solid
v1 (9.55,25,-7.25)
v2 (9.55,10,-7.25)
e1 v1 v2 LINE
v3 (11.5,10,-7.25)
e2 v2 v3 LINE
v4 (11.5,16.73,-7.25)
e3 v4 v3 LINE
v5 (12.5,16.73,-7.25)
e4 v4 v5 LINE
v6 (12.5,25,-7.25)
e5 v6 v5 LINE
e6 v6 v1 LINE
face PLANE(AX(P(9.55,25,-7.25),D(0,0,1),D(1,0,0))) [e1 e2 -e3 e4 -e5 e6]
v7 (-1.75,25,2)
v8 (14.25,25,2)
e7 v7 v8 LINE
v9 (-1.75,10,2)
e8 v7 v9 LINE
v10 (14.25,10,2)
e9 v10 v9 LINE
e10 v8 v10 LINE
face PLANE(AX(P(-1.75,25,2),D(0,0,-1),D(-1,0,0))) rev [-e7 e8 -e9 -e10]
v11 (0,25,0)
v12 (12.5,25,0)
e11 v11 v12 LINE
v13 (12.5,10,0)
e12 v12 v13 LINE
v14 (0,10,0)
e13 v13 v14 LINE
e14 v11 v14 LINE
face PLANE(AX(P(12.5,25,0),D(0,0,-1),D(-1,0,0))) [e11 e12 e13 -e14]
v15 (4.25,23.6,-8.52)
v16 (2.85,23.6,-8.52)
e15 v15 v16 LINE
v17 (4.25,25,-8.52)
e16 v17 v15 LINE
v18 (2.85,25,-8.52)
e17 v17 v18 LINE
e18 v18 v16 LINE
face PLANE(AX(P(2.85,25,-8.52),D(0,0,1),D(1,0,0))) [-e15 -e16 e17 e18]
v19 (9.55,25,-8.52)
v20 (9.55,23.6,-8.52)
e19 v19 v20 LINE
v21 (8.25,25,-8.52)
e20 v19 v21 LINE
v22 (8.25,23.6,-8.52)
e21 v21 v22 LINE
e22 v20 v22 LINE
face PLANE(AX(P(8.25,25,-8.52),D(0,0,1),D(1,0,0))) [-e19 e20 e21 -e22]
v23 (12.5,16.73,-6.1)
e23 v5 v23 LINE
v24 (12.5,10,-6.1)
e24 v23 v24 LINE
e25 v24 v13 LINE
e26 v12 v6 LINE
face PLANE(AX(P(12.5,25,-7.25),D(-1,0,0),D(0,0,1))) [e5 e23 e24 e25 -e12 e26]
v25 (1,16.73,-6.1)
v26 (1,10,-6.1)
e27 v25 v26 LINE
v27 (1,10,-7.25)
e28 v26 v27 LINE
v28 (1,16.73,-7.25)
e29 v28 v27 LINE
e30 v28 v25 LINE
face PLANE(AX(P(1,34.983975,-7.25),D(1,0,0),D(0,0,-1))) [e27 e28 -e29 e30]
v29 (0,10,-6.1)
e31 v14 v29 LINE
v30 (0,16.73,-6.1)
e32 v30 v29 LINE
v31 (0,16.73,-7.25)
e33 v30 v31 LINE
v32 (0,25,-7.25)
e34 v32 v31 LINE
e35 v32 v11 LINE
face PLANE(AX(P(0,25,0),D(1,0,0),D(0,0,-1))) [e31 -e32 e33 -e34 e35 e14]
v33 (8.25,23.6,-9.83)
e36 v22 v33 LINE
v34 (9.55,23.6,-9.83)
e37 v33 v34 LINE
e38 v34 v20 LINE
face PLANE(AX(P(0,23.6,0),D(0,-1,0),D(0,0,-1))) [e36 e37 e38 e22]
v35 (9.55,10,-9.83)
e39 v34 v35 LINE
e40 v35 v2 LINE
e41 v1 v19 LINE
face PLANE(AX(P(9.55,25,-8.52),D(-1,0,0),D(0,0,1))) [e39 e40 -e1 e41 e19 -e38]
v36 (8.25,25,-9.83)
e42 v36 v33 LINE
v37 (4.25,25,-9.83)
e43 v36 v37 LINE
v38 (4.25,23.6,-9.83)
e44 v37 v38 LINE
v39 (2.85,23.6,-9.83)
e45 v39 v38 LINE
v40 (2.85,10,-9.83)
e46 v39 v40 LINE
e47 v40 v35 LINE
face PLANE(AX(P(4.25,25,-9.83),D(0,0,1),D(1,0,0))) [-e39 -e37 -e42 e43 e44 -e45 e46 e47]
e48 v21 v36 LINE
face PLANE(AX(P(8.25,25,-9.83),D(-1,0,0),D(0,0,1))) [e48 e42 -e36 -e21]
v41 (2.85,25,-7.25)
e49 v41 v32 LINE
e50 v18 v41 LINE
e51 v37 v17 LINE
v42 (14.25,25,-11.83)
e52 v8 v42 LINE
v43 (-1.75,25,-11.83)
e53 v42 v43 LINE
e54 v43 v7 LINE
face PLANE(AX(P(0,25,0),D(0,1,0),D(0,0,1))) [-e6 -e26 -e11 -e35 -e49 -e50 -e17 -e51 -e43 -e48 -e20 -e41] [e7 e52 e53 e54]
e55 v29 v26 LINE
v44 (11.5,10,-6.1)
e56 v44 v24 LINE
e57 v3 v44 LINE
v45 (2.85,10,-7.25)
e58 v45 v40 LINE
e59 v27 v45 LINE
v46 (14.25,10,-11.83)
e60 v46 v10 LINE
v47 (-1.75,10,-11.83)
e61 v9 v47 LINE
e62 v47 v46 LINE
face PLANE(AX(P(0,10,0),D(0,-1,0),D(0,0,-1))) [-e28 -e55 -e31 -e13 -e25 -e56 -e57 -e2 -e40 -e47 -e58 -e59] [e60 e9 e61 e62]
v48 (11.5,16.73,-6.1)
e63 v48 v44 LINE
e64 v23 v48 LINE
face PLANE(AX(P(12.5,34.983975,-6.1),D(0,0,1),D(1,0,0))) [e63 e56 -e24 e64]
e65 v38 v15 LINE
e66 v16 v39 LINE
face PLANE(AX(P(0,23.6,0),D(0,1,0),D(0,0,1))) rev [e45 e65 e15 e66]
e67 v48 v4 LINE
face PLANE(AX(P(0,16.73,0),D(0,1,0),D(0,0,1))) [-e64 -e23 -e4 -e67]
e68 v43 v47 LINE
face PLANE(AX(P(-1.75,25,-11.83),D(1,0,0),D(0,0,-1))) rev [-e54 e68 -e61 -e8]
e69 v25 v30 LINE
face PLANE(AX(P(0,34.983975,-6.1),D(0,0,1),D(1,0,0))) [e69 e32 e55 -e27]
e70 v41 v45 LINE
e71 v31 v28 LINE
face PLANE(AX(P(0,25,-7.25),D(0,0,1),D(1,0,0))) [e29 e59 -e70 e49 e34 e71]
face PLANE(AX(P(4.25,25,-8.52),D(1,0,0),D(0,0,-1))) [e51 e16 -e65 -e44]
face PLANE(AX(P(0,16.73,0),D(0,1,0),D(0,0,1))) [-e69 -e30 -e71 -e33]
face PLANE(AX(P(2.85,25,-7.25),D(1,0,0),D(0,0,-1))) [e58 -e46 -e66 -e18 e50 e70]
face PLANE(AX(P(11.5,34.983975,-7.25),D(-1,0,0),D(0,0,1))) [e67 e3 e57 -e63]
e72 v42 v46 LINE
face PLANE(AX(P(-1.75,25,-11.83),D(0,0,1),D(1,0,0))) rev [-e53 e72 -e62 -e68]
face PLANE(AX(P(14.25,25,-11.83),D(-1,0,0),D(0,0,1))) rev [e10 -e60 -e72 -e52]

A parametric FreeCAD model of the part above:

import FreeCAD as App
import Part
import Sketcher
Q = App.Units.Quantity

doc = App.newDocument("Part")
body = doc.addObject("PartDesign::Body", "Body")

sketch1 = doc.addObject("Sketcher::SketchObject", "Sketch")
body.addObject(sketch1)
sketch1.AttachmentSupport = (doc.XZ_Plane, [""])
sketch1.MapMode = "FlatFace"
sketch1.addGeometry(Part.LineSegment(App.Vector(-1.75, -11.83, 0), App.Vector(-1.75, 2, 0)), False)
sketch1.addGeometry(Part.LineSegment(App.Vector(-1.75, 2, 0), App.Vector(14.25, 2, 0)), False)
sketch1.addGeometry(Part.LineSegment(App.Vector(14.25, 2, 0), App.Vector(14.25, -11.83, 0)), False)
sketch1.addGeometry(Part.LineSegment(App.Vector(14.25, -11.83, 0), App.Vector(-1.75, -11.83, 0)), False)
sketch1.addGeometry(Part.LineSegment(App.Vector(12.5, 0, 0), App.Vector(0, 0, 0)), False)
sketch1.addGeometry(Part.LineSegment(App.Vector(0, 0, 0), App.Vector(0, -7.25, 0)), False)
sketch1.addGeometry(Part.LineSegment(App.Vector(0, -7.25, 0), App.Vector(2.85, -7.25, 0)), False)
sketch1.addGeometry(Part.LineSegment(App.Vector(2.85, -7.25, 0), App.Vector(2.85, -8.52, 0)), False)
sketch1.addGeometry(Part.LineSegment(App.Vector(2.85, -8.52, 0), App.Vector(4.25, -8.52, 0)), False)
sketch1.addGeometry(Part.LineSegment(App.Vector(4.25, -8.52, 0), App.Vector(4.25, -9.83, 0)), False)
sketch1.addGeometry(Part.LineSegment(App.Vector(4.25, -9.83, 0), App.Vector(8.25, -9.83, 0)), False)
sketch1.addGeometry(Part.LineSegment(App.Vector(8.25, -9.83, 0), App.Vector(8.25, -8.52, 0)), False)
sketch1.addGeometry(Part.LineSegment(App.Vector(8.25, -8.52, 0), App.Vector(9.55, -8.52, 0)), False)
sketch1.addGeometry(Part.LineSegment(App.Vector(9.55, -8.52, 0), App.Vector(9.55, -7.25, 0)), False)
sketch1.addGeometry(Part.LineSegment(App.Vector(9.55, -7.25, 0), App.Vector(12.5, -7.25, 0)), False)
sketch1.addGeometry(Part.LineSegment(App.Vector(12.5, -7.25, 0), App.Vector(12.5, 0, 0)), False)
sketch1.addConstraint(Sketcher.Constraint("Coincident", 0, 2, 1, 1))
sketch1.addConstraint(Sketcher.Constraint("Coincident", 1, 2, 2, 1))
sketch1.addConstraint(Sketcher.Constraint("Coincident", 2, 2, 3, 1))
sketch1.addConstraint(Sketcher.Constraint("Coincident", 3, 2, 0, 1))
sketch1.addConstraint(Sketcher.Constraint("Coincident", 4, 2, 5, 1))
sketch1.addConstraint(Sketcher.Constraint("Coincident", 5, 2, 6, 1))
sketch1.addConstraint(Sketcher.Constraint("Coincident", 6, 2, 7, 1))
sketch1.addConstraint(Sketcher.Constraint("Coincident", 7, 2, 8, 1))
sketch1.addConstraint(Sketcher.Constraint("Coincident", 8, 2, 9, 1))
sketch1.addConstraint(Sketcher.Constraint("Coincident", 9, 2, 10, 1))
sketch1.addConstraint(Sketcher.Constraint("Coincident", 10, 2, 11, 1))
sketch1.addConstraint(Sketcher.Constraint("Coincident", 11, 2, 12, 1))
sketch1.addConstraint(Sketcher.Constraint("Coincident", 12, 2, 13, 1))
sketch1.addConstraint(Sketcher.Constraint("Coincident", 13, 2, 14, 1))
sketch1.addConstraint(Sketcher.Constraint("Coincident", 14, 2, 15, 1))
sketch1.addConstraint(Sketcher.Constraint("Coincident", 15, 2, 4, 1))
sketch1.addConstraint(Sketcher.Constraint("Vertical", 0))
sketch1.addConstraint(Sketcher.Constraint("Horizontal", 1))
sketch1.addConstraint(Sketcher.Constraint("Vertical", 2))
sketch1.addConstraint(Sketcher.Constraint("Horizontal", 3))
sketch1.addConstraint(Sketcher.Constraint("Horizontal", 4))
sketch1.addConstraint(Sketcher.Constraint("Vertical", 5))
sketch1.addConstraint(Sketcher.Constraint("Horizontal", 6))
sketch1.addConstraint(Sketcher.Constraint("Vertical", 7))
sketch1.addConstraint(Sketcher.Constraint("Horizontal", 8))
sketch1.addConstraint(Sketcher.Constraint("Vertical", 9))
sketch1.addConstraint(Sketcher.Constraint("Horizontal", 10))
sketch1.addConstraint(Sketcher.Constraint("Vertical", 11))
sketch1.addConstraint(Sketcher.Constraint("Horizontal", 12))
sketch1.addConstraint(Sketcher.Constraint("Vertical", 13))
sketch1.addConstraint(Sketcher.Constraint("Horizontal", 14))
sketch1.addConstraint(Sketcher.Constraint("Vertical", 15))
sketch1.addConstraint(Sketcher.Constraint("Coincident", 4, 2, -1, 1))
sketch1.addConstraint(Sketcher.Constraint("Horizontal", 8, 2, 11, 2))
sketch1.addConstraint(Sketcher.Constraint("Horizontal", 6, 2, 13, 2))
sketch1.addConstraint(Sketcher.Constraint("DistanceX", 1, 1, 1, 2, Q("16 mm")))
sketch1.addConstraint(Sketcher.Constraint("DistanceX", 10, 1, 10, 2, Q("4 mm")))
sketch1.addConstraint(Sketcher.Constraint("DistanceX", 4, 2, 4, 1, Q("12.5 mm")))
sketch1.addConstraint(Sketcher.Constraint("DistanceX", 8, 1, 8, 2, Q("1.4 mm")))
sketch1.addConstraint(Sketcher.Constraint("DistanceX", 12, 1, 12, 2, Q("1.3 mm")))
sketch1.addConstraint(Sketcher.Constraint("DistanceY", -1, 1, 0, 2, Q("2 mm")))
sketch1.addConstraint(Sketcher.Constraint("DistanceX", 3, 2, 8, 2, Q("6 mm")))
sketch1.addConstraint(Sketcher.Constraint("DistanceY", 3, 2, 9, 2, Q("2 mm")))
sketch1.addConstraint(Sketcher.Constraint("DistanceX", 6, 1, 6, 2, Q("2.85 mm")))
sketch1.addConstraint(Sketcher.Constraint("DistanceY", 0, 1, 0, 2, Q("13.83 mm")))
sketch1.addConstraint(Sketcher.Constraint("DistanceY", 5, 2, 5, 1, Q("7.25 mm")))
sketch1.addConstraint(Sketcher.Constraint("DistanceY", 7, 2, 7, 1, Q("1.27 mm")))
pad1 = doc.addObject("PartDesign::Pad", "Pad")
body.addObject(pad1)
pad1.Profile = sketch1
pad1.Length = 25
pad1.Reversed = True

sketch2 = doc.addObject("Sketcher::SketchObject", "Sketch001")
body.addObject(sketch2)
sketch2.AttachmentSupport = (doc.XZ_Plane, [""])
sketch2.MapMode = "FlatFace"
sketch2.addGeometry(Part.LineSegment(App.Vector(11.5, -6.1, 0), App.Vector(11.5, -7.25, 0)), False)
sketch2.addGeometry(Part.LineSegment(App.Vector(11.5, -7.25, 0), App.Vector(12.5, -7.25, 0)), False)
sketch2.addGeometry(Part.LineSegment(App.Vector(12.5, -7.25, 0), App.Vector(12.5, -6.1, 0)), False)
sketch2.addGeometry(Part.LineSegment(App.Vector(12.5, -6.1, 0), App.Vector(11.5, -6.1, 0)), False)
sketch2.addGeometry(Part.LineSegment(App.Vector(0, -6.1, 0), App.Vector(0, -7.25, 0)), False)
sketch2.addGeometry(Part.LineSegment(App.Vector(0, -7.25, 0), App.Vector(1, -7.25, 0)), False)
sketch2.addGeometry(Part.LineSegment(App.Vector(1, -7.25, 0), App.Vector(1, -6.1, 0)), False)
sketch2.addGeometry(Part.LineSegment(App.Vector(1, -6.1, 0), App.Vector(0, -6.1, 0)), False)
sketch2.addConstraint(Sketcher.Constraint("Coincident", 0, 2, 1, 1))
sketch2.addConstraint(Sketcher.Constraint("Coincident", 1, 2, 2, 1))
sketch2.addConstraint(Sketcher.Constraint("Coincident", 2, 2, 3, 1))
sketch2.addConstraint(Sketcher.Constraint("Coincident", 3, 2, 0, 1))
sketch2.addConstraint(Sketcher.Constraint("Coincident", 4, 2, 5, 1))
sketch2.addConstraint(Sketcher.Constraint("Coincident", 5, 2, 6, 1))
sketch2.addConstraint(Sketcher.Constraint("Coincident", 6, 2, 7, 1))
sketch2.addConstraint(Sketcher.Constraint("Coincident", 7, 2, 4, 1))
sketch2.addConstraint(Sketcher.Constraint("Vertical", 0))
sketch2.addConstraint(Sketcher.Constraint("Horizontal", 1))
sketch2.addConstraint(Sketcher.Constraint("Vertical", 2))
sketch2.addConstraint(Sketcher.Constraint("Horizontal", 3))
sketch2.addConstraint(Sketcher.Constraint("Vertical", 4))
sketch2.addConstraint(Sketcher.Constraint("Horizontal", 5))
sketch2.addConstraint(Sketcher.Constraint("Vertical", 6))
sketch2.addConstraint(Sketcher.Constraint("Horizontal", 7))
sketch2.addConstraint(Sketcher.Constraint("PointOnObject", 4, 2, -2))
sketch2.addConstraint(Sketcher.Constraint("Horizontal", 1, 2, 4, 2))
sketch2.addConstraint(Sketcher.Constraint("Horizontal", 3, 2, 6, 2))
sketch2.addConstraint(Sketcher.Constraint("Equal", 3, 5))
sketch2.addConstraint(Sketcher.Constraint("DistanceX", 1, 1, 1, 2, Q("1 mm")))
sketch2.addConstraint(Sketcher.Constraint("DistanceY", 0, 2, 0, 1, Q("1.15 mm")))
sketch2.addConstraint(Sketcher.Constraint("DistanceX", -1, 1, 0, 2, Q("11.5 mm")))
sketch2.addConstraint(Sketcher.Constraint("DistanceY", 2, 2, -1, 1, Q("6.1 mm")))
pad2 = doc.addObject("PartDesign::Pad", "Pad001")
body.addObject(pad2)
pad2.Profile = sketch2
pad2.Length = 16.73
pad2.Reversed = True

sketch3 = doc.addObject("Sketcher::SketchObject", "Sketch002")
body.addObject(sketch3)
sketch3.AttachmentSupport = (doc.XZ_Plane, [""])
sketch3.MapMode = "FlatFace"
sketch3.addGeometry(Part.LineSegment(App.Vector(2.85, -8.52, 0), App.Vector(2.85, -9.83, 0)), False)
sketch3.addGeometry(Part.LineSegment(App.Vector(2.85, -9.83, 0), App.Vector(4.25, -9.83, 0)), False)
sketch3.addGeometry(Part.LineSegment(App.Vector(4.25, -9.83, 0), App.Vector(4.25, -8.52, 0)), False)
sketch3.addGeometry(Part.LineSegment(App.Vector(4.25, -8.52, 0), App.Vector(2.85, -8.52, 0)), False)
sketch3.addGeometry(Part.LineSegment(App.Vector(8.25, -8.52, 0), App.Vector(8.25, -9.83, 0)), False)
sketch3.addGeometry(Part.LineSegment(App.Vector(8.25, -9.83, 0), App.Vector(9.55, -9.83, 0)), False)
sketch3.addGeometry(Part.LineSegment(App.Vector(9.55, -9.83, 0), App.Vector(9.55, -8.52, 0)), False)
sketch3.addGeometry(Part.LineSegment(App.Vector(9.55, -8.52, 0), App.Vector(8.25, -8.52, 0)), False)
sketch3.addConstraint(Sketcher.Constraint("Coincident", 0, 2, 1, 1))
sketch3.addConstraint(Sketcher.Constraint("Coincident", 1, 2, 2, 1))
sketch3.addConstraint(Sketcher.Constraint("Coincident", 2, 2, 3, 1))
sketch3.addConstraint(Sketcher.Constraint("Coincident", 3, 2, 0, 1))
sketch3.addConstraint(Sketcher.Constraint("Coincident", 4, 2, 5, 1))
sketch3.addConstraint(Sketcher.Constraint("Coincident", 5, 2, 6, 1))
sketch3.addConstraint(Sketcher.Constraint("Coincident", 6, 2, 7, 1))
sketch3.addConstraint(Sketcher.Constraint("Coincident", 7, 2, 4, 1))
sketch3.addConstraint(Sketcher.Constraint("Vertical", 0))
sketch3.addConstraint(Sketcher.Constraint("Horizontal", 1))
sketch3.addConstraint(Sketcher.Constraint("Vertical", 2))
sketch3.addConstraint(Sketcher.Constraint("Horizontal", 3))
sketch3.addConstraint(Sketcher.Constraint("Vertical", 4))
sketch3.addConstraint(Sketcher.Constraint("Horizontal", 5))
sketch3.addConstraint(Sketcher.Constraint("Vertical", 6))
sketch3.addConstraint(Sketcher.Constraint("Horizontal", 7))
sketch3.addConstraint(Sketcher.Constraint("Horizontal", 1, 2, 4, 2))
sketch3.addConstraint(Sketcher.Constraint("Horizontal", 3, 2, 6, 2))
sketch3.addConstraint(Sketcher.Constraint("DistanceX", 1, 1, 1, 2, Q("1.4 mm")))
sketch3.addConstraint(Sketcher.Constraint("DistanceX", 5, 1, 5, 2, Q("1.3 mm")))
sketch3.addConstraint(Sketcher.Constraint("DistanceX", 1, 2, 4, 2, Q("4 mm")))
sketch3.addConstraint(Sketcher.Constraint("DistanceY", 0, 2, 0, 1, Q("1.31 mm")))
sketch3.addConstraint(Sketcher.Constraint("DistanceX", -1, 1, 0, 2, Q("2.85 mm")))
sketch3.addConstraint(Sketcher.Constraint("DistanceY", 0, 2, -1, 1, Q("9.83 mm")))
pocket1 = doc.addObject("PartDesign::Pocket", "Pocket")
body.addObject(pocket1)
pocket1.Profile = sketch3
pocket1.Length = 23.6

sketch4 = doc.addObject("Sketcher::SketchObject", "Sketch003")
body.addObject(sketch4)
sketch4.AttachmentSupport = (doc.XZ_Plane, [""])
sketch4.MapMode = "FlatFace"
sketch4.addGeometry(Part.LineSegment(App.Vector(-1.75, 2, 0), App.Vector(-1.75, -11.83, 0)), False)
sketch4.addGeometry(Part.LineSegment(App.Vector(-1.75, -11.83, 0), App.Vector(14.25, -11.83, 0)), False)
sketch4.addGeometry(Part.LineSegment(App.Vector(14.25, -11.83, 0), App.Vector(14.25, 2, 0)), False)
sketch4.addGeometry(Part.LineSegment(App.Vector(14.25, 2, 0), App.Vector(-1.75, 2, 0)), False)
sketch4.addConstraint(Sketcher.Constraint("Coincident", 0, 2, 1, 1))
sketch4.addConstraint(Sketcher.Constraint("Coincident", 1, 2, 2, 1))
sketch4.addConstraint(Sketcher.Constraint("Coincident", 2, 2, 3, 1))
sketch4.addConstraint(Sketcher.Constraint("Coincident", 3, 2, 0, 1))
sketch4.addConstraint(Sketcher.Constraint("Vertical", 0))
sketch4.addConstraint(Sketcher.Constraint("Horizontal", 1))
sketch4.addConstraint(Sketcher.Constraint("Vertical", 2))
sketch4.addConstraint(Sketcher.Constraint("Horizontal", 3))
sketch4.addConstraint(Sketcher.Constraint("DistanceX", 1, 1, 1, 2, Q("16 mm")))
sketch4.addConstraint(Sketcher.Constraint("DistanceY", -1, 1, 2, 2, Q("2 mm")))
sketch4.addConstraint(Sketcher.Constraint("DistanceY", 0, 2, 0, 1, Q("13.83 mm")))
sketch4.addConstraint(Sketcher.Constraint("DistanceX", 0, 2, -1, 1, Q("1.75 mm")))
pocket2 = doc.addObject("PartDesign::Pocket", "Pocket001")
body.addObject(pocket2)
pocket2.Profile = sketch4
pocket2.Length = 10

doc.recompute()
